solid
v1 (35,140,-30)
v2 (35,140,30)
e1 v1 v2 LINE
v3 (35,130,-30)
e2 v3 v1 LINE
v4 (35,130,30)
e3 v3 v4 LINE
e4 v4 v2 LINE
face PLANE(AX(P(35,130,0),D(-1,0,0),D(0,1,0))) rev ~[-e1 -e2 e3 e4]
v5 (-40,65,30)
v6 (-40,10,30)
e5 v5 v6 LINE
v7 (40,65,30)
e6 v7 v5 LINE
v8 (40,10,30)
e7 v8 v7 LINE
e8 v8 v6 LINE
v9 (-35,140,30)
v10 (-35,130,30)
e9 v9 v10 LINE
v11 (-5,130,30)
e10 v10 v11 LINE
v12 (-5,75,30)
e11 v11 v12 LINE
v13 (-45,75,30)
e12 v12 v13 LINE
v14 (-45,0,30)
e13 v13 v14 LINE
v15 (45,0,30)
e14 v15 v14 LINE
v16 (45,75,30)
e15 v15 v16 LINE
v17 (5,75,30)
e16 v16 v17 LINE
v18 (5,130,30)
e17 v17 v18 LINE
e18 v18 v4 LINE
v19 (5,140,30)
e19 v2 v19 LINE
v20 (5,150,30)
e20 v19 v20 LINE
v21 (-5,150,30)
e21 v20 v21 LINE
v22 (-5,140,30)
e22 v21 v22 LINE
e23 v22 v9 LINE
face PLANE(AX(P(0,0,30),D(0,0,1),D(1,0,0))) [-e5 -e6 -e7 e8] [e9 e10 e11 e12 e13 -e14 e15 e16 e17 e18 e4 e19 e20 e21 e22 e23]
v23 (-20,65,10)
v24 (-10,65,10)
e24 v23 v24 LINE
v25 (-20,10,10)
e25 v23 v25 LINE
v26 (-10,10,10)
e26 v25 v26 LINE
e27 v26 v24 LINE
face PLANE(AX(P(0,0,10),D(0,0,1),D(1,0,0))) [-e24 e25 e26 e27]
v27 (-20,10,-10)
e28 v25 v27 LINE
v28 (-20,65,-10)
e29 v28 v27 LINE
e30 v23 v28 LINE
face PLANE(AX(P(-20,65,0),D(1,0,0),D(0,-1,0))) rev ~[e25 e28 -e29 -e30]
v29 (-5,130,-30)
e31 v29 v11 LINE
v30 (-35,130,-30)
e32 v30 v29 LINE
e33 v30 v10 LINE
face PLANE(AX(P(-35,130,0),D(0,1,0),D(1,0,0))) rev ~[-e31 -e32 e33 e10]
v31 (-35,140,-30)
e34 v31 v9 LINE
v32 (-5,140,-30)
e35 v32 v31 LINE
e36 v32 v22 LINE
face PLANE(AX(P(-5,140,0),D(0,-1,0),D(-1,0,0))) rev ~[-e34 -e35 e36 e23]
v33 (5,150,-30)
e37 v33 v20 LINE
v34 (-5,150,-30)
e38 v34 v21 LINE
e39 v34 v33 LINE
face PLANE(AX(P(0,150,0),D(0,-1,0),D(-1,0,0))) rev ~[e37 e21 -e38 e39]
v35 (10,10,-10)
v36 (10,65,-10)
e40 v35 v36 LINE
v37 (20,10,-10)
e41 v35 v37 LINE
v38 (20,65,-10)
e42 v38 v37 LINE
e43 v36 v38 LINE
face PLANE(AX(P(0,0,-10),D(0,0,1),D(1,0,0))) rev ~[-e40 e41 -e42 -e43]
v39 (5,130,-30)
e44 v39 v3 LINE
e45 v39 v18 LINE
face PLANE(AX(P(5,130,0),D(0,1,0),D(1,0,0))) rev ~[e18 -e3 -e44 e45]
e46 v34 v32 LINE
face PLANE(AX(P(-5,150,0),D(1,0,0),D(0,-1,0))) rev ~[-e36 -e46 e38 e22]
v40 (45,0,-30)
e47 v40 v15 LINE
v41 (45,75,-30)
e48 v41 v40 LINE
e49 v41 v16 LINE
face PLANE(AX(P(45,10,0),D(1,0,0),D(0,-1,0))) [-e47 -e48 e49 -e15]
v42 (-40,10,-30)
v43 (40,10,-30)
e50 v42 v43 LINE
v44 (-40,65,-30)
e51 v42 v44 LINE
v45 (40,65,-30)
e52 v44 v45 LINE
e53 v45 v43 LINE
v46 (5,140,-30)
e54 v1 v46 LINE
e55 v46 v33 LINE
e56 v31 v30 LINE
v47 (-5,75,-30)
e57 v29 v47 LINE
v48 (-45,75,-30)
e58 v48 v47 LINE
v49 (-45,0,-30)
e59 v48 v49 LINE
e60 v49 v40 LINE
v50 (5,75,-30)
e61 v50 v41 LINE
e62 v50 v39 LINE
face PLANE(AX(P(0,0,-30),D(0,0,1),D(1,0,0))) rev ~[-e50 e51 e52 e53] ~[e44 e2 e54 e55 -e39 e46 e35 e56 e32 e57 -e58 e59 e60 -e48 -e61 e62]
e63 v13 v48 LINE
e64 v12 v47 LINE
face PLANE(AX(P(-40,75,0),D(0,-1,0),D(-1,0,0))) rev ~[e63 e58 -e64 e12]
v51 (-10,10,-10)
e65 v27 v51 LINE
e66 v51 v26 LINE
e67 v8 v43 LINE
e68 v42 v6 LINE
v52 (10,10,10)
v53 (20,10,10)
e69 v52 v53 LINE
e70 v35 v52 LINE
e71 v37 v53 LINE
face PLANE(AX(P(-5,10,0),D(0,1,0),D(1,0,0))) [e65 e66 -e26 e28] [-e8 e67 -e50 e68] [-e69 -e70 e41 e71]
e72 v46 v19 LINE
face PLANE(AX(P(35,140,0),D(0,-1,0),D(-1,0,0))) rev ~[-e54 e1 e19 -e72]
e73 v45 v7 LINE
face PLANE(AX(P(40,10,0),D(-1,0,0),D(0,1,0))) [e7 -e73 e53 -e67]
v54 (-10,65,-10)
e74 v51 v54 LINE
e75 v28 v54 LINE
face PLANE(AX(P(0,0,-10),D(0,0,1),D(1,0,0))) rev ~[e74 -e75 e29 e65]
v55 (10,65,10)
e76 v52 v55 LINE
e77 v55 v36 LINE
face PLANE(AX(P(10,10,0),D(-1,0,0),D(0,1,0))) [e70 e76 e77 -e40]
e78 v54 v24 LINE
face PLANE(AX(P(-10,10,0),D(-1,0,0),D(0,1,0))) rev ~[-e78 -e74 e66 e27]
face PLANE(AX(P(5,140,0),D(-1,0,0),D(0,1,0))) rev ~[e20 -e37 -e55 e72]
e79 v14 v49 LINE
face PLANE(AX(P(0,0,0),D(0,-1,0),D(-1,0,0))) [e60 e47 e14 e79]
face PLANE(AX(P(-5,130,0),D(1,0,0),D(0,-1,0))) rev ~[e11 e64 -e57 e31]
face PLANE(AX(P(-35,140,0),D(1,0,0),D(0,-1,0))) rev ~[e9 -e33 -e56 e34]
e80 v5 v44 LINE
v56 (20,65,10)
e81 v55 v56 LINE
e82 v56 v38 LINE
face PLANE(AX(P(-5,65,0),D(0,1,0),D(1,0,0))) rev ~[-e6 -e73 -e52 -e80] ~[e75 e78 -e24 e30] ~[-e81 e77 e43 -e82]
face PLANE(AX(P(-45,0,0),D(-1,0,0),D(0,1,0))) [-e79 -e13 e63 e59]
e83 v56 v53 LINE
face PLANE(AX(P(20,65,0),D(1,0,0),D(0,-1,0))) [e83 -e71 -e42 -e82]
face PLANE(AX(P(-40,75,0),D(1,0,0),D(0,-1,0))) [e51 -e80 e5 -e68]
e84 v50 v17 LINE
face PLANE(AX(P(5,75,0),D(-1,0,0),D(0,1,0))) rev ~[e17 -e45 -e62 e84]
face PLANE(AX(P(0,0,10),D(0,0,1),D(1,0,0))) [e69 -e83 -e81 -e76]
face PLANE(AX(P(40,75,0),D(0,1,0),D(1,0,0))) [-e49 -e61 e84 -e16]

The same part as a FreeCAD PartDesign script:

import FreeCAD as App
import Part
import Sketcher
from FreeCAD import Vector
Q = App.Units.Quantity


def add_polygon(sketch, points):
    """Adds a closed chain of lines whose ends are joined by coincident constraints."""
    first, n = sketch.GeometryCount, len(points)
    for a, b in zip(points, points[1:] + points[:1]):
        sketch.addGeometry(Part.LineSegment(App.Vector(*a, 0), App.Vector(*b, 0)), False)
    for i in range(n):
        sketch.addConstraint(Sketcher.Constraint("Coincident", first + i, 2, first + (i + 1) % n, 1))

doc = App.newDocument("Part")
params = doc.addObject("Spreadsheet::Sheet", "Params")
for row, (alias, value) in enumerate([
    ("sketch1_width", "90 mm"),
    ("sketch1_width2", "10 mm"),
    ("sketch1_width3", "80 mm"),
    ("sketch1_height", "55 mm"),
    ("pad1_length", "30 mm"),
    ("pad1_length2", "30 mm"),
    ("sketch2_height", "65 mm"),
    ("pad2_length", "30 mm"),
    ("pad2_length2", "30 mm"),
    ("sketch3_width", "10 mm"),
    ("sketch3_height", "55 mm"),
    ("pad3_length", "10 mm"),
    ("pad3_length2", "10 mm"),
], start=1):
    params.set(f"A{row}", alias)
    params.set(f"B{row}", "=" + value)
    params.setAlias(f"B{row}", alias)

body = doc.addObject("PartDesign::Body", "Body")
body.AllowCompound = True

sketch1 = body.newObject("Sketcher::SketchObject", "Sketch")
sketch1.AttachmentSupport = (doc.getObject("XY_Plane"), [""])
sketch1.MapMode = "FlatFace"
add_polygon(sketch1, [(45, 0), (45, 10), (-45, 10), (-45, 0)])
add_polygon(sketch1, [(40, 65), (40, 75), (5, 75), (5, 130), (35, 130), (35, 140), (5, 140), (5, 150), (-5, 150), (-5, 140), (-35, 140), (-35, 130), (-5, 130), (-5, 75), (-40, 75), (-40, 65)])
sketch1.addConstraint([
    Sketcher.Constraint("Vertical", 0),
    Sketcher.Constraint("Horizontal", 1),
    Sketcher.Constraint("Vertical", 2),
    Sketcher.Constraint("Horizontal", 3),
    Sketcher.Constraint("Vertical", 4),
    Sketcher.Constraint("Horizontal", 5),
    Sketcher.Constraint("Vertical", 6),
    Sketcher.Constraint("Horizontal", 7),
    Sketcher.Constraint("Vertical", 8),
    Sketcher.Constraint("Horizontal", 9),
    Sketcher.Constraint("Vertical", 10),
    Sketcher.Constraint("Horizontal", 11),
    Sketcher.Constraint("Vertical", 12),
    Sketcher.Constraint("Horizontal", 13),
    Sketcher.Constraint("Vertical", 14),
    Sketcher.Constraint("Horizontal", 15),
    Sketcher.Constraint("Vertical", 16),
    Sketcher.Constraint("Horizontal", 17),
    Sketcher.Constraint("Vertical", 18),
    Sketcher.Constraint("Horizontal", 19),
    Sketcher.Constraint("Symmetric", 2, 2, 3, 2, -1, 1),
    Sketcher.Constraint("Symmetric", 9, 2, 12, 2, -2),
    Sketcher.Constraint("Symmetric", 7, 2, 14, 2, -2),
    Sketcher.Constraint("Symmetric", 5, 2, 16, 2, -2),
    Sketcher.Constraint("Vertical", 6, 2, 9, 2),
    Sketcher.Constraint("Equal", 5, 17),
    Sketcher.Constraint("Equal", 11, 0),
    Sketcher.Constraint("Equal", 2, 4),
    Sketcher.Constraint("Equal", 4, 8),
    Sketcher.Constraint("Equal", 8, 10),
    Sketcher.Constraint("DistanceX", 1, 2, 1, 1, Q("90 mm")),
    Sketcher.Constraint("DistanceX", 11, 2, 11, 1, Q("10 mm")),
    Sketcher.Constraint("DistanceX", 19, 1, 19, 2, Q("80 mm")),
    Sketcher.Constraint("DistanceY", 6, 1, 6, 2, Q("55 mm")),
    Sketcher.Constraint("DistanceY", -1, 1, 10, 2, Q("150 mm")),
    Sketcher.Constraint("DistanceX", 7, 2, 0, 2, Q("10 mm")),
])
sketch1.setExpression("Constraints[50]", "Params.sketch1_width")
sketch1.setExpression("Constraints[51]", "Params.sketch1_width2")
sketch1.setExpression("Constraints[52]", "Params.sketch1_width3")
sketch1.setExpression("Constraints[53]", "Params.sketch1_height")
pad1 = body.newObject("PartDesign::Pad", "Pad")
pad1.Profile = sketch1
pad1.Type = "TwoLengths"
pad1.setExpression("Length", "Params.pad1_length")
pad1.setExpression("Length2", "Params.pad1_length2")

sketch2 = body.newObject("Sketcher::SketchObject", "Sketch001")
sketch2.AttachmentSupport = (doc.getObject("XY_Plane"), [""])
sketch2.MapMode = "FlatFace"
add_polygon(sketch2, [(40, 10), (45, 10), (45, 75), (40, 75)])
add_polygon(sketch2, [(-45, 75), (-45, 10), (-40, 10), (-40, 75)])
sketch2.addConstraint([
    Sketcher.Constraint("Horizontal", 0),
    Sketcher.Constraint("Vertical", 1),
    Sketcher.Constraint("Horizontal", 2),
    Sketcher.Constraint("Vertical", 3),
    Sketcher.Constraint("Vertical", 4),
    Sketcher.Constraint("Horizontal", 5),
    Sketcher.Constraint("Vertical", 6),
    Sketcher.Constraint("Horizontal", 7),
    Sketcher.Constraint("Symmetric", 0, 2, 4, 2, -2),
    Sketcher.Constraint("Symmetric", 2, 2, 6, 2, -2),
    Sketcher.Constraint("DistanceY", -1, 1, 0, 2, Q("10 mm")),
    Sketcher.Constraint("DistanceX", 4, 2, 0, 2, Q("90 mm")),
    Sketcher.Constraint("DistanceX", 5, 2, 3, 2, Q("80 mm")),
    Sketcher.Constraint("DistanceY", 1, 1, 1, 2, Q("65 mm")),
])
sketch2.setExpression("Constraints[21]", "Params.sketch2_height")
pad2 = body.newObject("PartDesign::Pad", "Pad001")
pad2.Profile = sketch2
pad2.Type = "TwoLengths"
pad2.setExpression("Length", "Params.pad2_length")
pad2.setExpression("Length2", "Params.pad2_length2")

sketch3 = body.newObject("Sketcher::SketchObject", "Sketch002")
sketch3.AttachmentSupport = (doc.getObject("XY_Plane"), [""])
sketch3.MapMode = "FlatFace"
add_polygon(sketch3, [(-20, 10), (-10, 10), (-10, 65), (-20, 65)])
add_polygon(sketch3, [(10, 65), (10, 10), (20, 10), (20, 65)])
sketch3.addConstraint([
    Sketcher.Constraint("Horizontal", 0),
    Sketcher.Constraint("Vertical", 1),
    Sketcher.Constraint("Horizontal", 2),
    Sketcher.Constraint("Vertical", 3),
    Sketcher.Constraint("Vertical", 4),
    Sketcher.Constraint("Horizontal", 5),
    Sketcher.Constraint("Vertical", 6),
    Sketcher.Constraint("Horizontal", 7),
    Sketcher.Constraint("Symmetric", 0, 2, 4, 2, -2),
    Sketcher.Constraint("Symmetric", 2, 2, 6, 2, -2),
    Sketcher.Constraint("DistanceX", 0, 1, 0, 2, Q("10 mm")),
    Sketcher.Constraint("DistanceY", 1, 1, 1, 2, Q("55 mm")),
    Sketcher.Constraint("DistanceX", 0, 2, -1, 1, Q("10 mm")),
    Sketcher.Constraint("DistanceY", -1, 1, 0, 2, Q("10 mm")),
])
sketch3.setExpression("Constraints[18]", "Params.sketch3_width")
sketch3.setExpression("Constraints[19]", "Params.sketch3_height")
pad3 = body.newObject("PartDesign::Pad", "Pad002")
pad3.Profile = sketch3
pad3.Type = "TwoLengths"
pad3.setExpression("Length", "Params.pad3_length")
pad3.setExpression("Length2", "Params.pad3_length2")

doc.recompute()
